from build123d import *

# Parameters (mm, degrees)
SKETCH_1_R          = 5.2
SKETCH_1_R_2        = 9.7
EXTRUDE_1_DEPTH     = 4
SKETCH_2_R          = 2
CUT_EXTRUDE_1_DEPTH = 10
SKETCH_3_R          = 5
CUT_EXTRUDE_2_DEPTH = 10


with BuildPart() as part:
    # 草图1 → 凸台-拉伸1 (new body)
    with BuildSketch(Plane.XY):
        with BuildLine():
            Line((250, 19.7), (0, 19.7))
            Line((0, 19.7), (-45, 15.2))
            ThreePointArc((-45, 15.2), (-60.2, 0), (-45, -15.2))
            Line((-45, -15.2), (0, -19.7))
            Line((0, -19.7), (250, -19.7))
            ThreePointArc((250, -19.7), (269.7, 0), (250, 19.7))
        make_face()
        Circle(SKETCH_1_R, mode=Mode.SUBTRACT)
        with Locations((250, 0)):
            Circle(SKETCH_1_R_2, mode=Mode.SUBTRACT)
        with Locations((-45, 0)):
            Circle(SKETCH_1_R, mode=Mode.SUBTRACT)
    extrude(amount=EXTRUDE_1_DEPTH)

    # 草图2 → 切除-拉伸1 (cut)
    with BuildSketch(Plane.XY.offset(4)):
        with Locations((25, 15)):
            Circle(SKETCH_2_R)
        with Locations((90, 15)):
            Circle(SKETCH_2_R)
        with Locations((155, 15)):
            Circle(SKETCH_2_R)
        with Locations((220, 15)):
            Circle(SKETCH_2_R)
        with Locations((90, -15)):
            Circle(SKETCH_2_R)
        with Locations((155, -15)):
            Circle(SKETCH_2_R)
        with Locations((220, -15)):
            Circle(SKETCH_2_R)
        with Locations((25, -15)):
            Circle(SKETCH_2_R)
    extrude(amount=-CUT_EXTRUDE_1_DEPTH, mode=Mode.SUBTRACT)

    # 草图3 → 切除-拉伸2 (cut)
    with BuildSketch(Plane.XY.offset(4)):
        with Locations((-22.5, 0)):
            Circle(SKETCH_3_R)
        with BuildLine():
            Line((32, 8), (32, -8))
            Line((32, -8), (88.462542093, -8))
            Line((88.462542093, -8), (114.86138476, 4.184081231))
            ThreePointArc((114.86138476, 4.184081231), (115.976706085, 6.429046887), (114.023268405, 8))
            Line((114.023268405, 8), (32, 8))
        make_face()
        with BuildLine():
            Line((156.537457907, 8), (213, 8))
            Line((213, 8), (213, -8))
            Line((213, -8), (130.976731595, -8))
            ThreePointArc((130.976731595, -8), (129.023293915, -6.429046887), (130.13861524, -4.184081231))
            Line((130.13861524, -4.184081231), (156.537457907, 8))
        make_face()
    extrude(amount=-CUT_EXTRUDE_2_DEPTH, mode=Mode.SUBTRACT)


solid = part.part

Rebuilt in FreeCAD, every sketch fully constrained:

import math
import FreeCAD as App
import Part
import Sketcher

doc = App.newDocument("Part")
body = doc.addObject("PartDesign::Body", "Body")

# Sketch on XY plane
sketch1 = doc.addObject("Sketcher::SketchObject", "Sketch")
body.addObject(sketch1)
sketch1.AttachmentSupport = (doc.XY_Plane, [""])
sketch1.MapMode = "FlatFace"
sketch1.addGeometry([
    Part.LineSegment(App.Vector(250, 20, 0), App.Vector(0, 20, 0)),  # 0
    Part.LineSegment(App.Vector(0, 20, 0), App.Vector(-45, 15, 0)),  # 1
    Part.ArcOfCircle(Part.Circle(App.Vector(-45, 0, 0), App.Vector(0, 0, 1), 15), math.radians(90), math.radians(270)),  # 2
    Part.LineSegment(App.Vector(-45, -15, 0), App.Vector(0, -20, 0)),  # 3
    Part.LineSegment(App.Vector(0, -20, 0), App.Vector(250, -20, 0)),  # 4
    Part.ArcOfCircle(Part.Circle(App.Vector(250, 0, 0), App.Vector(0, 0, 1), 20), math.radians(-90), math.radians(90)),  # 5
    Part.Circle(App.Vector(-45, 0, 0), App.Vector(0, 0, 1), 5),  # 6
    Part.Circle(App.Vector(0, 0, 0), App.Vector(0, 0, 1), 5),  # 7
    Part.Circle(App.Vector(250, 0, 0), App.Vector(0, 0, 1), 10),  # 8
], False)
sketch1.addConstraint([
    Sketcher.Constraint("Coincident", 0, 2, 1, 1),
    Sketcher.Constraint("Coincident", 1, 2, 2, 1),
    Sketcher.Constraint("Coincident", 2, 2, 3, 1),
    Sketcher.Constraint("Coincident", 3, 2, 4, 1),
    Sketcher.Constraint("Tangent", 4, 2, 5, 1),
    Sketcher.Constraint("Tangent", 5, 2, 0, 1),
    Sketcher.Constraint("Horizontal", 0),
    Sketcher.Constraint("Horizontal", 4),
    Sketcher.Constraint("Coincident", 7, 3, -1, 1),
    Sketcher.Constraint("Coincident", 6, 3, 2, 3),
    Sketcher.Constraint("Coincident", 8, 3, 5, 3),
    Sketcher.Constraint("Equal", 6, 7),
    Sketcher.Constraint("Symmetric", 0, 2, 3, 2, -1, 1),
    Sketcher.Constraint("Symmetric", 1, 2, 2, 2, -1),
    Sketcher.Constraint("PointOnObject", 0, 2, -2),
    Sketcher.Constraint("Vertical", 6, 3, 1, 2),
    Sketcher.Constraint("Diameter", 6, 10.4),
    Sketcher.Constraint("Diameter", 8, 19.4),
    Sketcher.Constraint("Radius", 2, 15.2),
    Sketcher.Constraint("Radius", 5, 19.7),
    Sketcher.Constraint("DistanceX", 0, 2, 0, 1, 250.0),
    Sketcher.Constraint("DistanceX", 2, 3, -1, 1, 45.0),
])
pad1 = doc.addObject("PartDesign::Pad", "Pad")
body.addObject(pad1)
pad1.Profile = sketch1
pad1.Length = 4

# Sketch on XY plane
sketch2 = doc.addObject("Sketcher::SketchObject", "Sketch001")
body.addObject(sketch2)
sketch2.AttachmentSupport = (doc.XY_Plane, [""])
sketch2.MapMode = "FlatFace"
sketch2.AttachmentOffset = App.Placement(App.Vector(0, 0, 4), App.Rotation())
sketch2.addGeometry([
    Part.Circle(App.Vector(25, 15, 0), App.Vector(0, 0, 1), 2),  # 0
    Part.Circle(App.Vector(90, 15, 0), App.Vector(0, 0, 1), 2),  # 1
    Part.Circle(App.Vector(155, 15, 0), App.Vector(0, 0, 1), 2),  # 2
    Part.Circle(App.Vector(220, 15, 0), App.Vector(0, 0, 1), 2),  # 3
    Part.Circle(App.Vector(90, -15, 0), App.Vector(0, 0, 1), 2),  # 4
    Part.Circle(App.Vector(155, -15, 0), App.Vector(0, 0, 1), 2),  # 5
    Part.Circle(App.Vector(220, -15, 0), App.Vector(0, 0, 1), 2),  # 6
    Part.Circle(App.Vector(25, -15, 0), App.Vector(0, 0, 1), 2),  # 7
], False)
sketch2.addConstraint([
    Sketcher.Constraint("Equal", 0, 1),
    Sketcher.Constraint("Equal", 1, 2),
    Sketcher.Constraint("Equal", 2, 3),
    Sketcher.Constraint("Equal", 3, 4),
    Sketcher.Constraint("Equal", 4, 5),
    Sketcher.Constraint("Equal", 5, 6),
    Sketcher.Constraint("Equal", 6, 7),
    Sketcher.Constraint("Symmetric", 1, 3, 4, 3, -1),
    Sketcher.Constraint("Symmetric", 2, 3, 5, 3, -1),
    Sketcher.Constraint("Symmetric", 3, 3, 6, 3, -1),
    Sketcher.Constraint("Symmetric", 0, 3, 7, 3, -1),
    Sketcher.Constraint("Horizontal", 0, 3, 1, 3),
    Sketcher.Constraint("Horizontal", 1, 3, 2, 3),
    Sketcher.Constraint("Horizontal", 2, 3, 3, 3),
    Sketcher.Constraint("Diameter", 0, 4.0),
    Sketcher.Constraint("DistanceX", -1, 1, 0, 3, 25.0),
    Sketcher.Constraint("DistanceY", -1, 1, 0, 3, 15.0),
    Sketcher.Constraint("DistanceX", -1, 1, 1, 3, 90.0),
    Sketcher.Constraint("DistanceX", -1, 1, 2, 3, 155.0),
    Sketcher.Constraint("DistanceX", -1, 1, 3, 3, 220.0),
])
pocket1 = doc.addObject("PartDesign::Pocket", "Pocket")
body.addObject(pocket1)
pocket1.Profile = sketch2
pocket1.Length = 10

# Sketch on XY plane
sketch3 = doc.addObject("Sketcher::SketchObject", "Sketch002")
body.addObject(sketch3)
sketch3.AttachmentSupport = (doc.XY_Plane, [""])
sketch3.MapMode = "FlatFace"
sketch3.AttachmentOffset = App.Placement(App.Vector(0, 0, 4), App.Rotation())
sketch3.addGeometry([
    Part.Circle(App.Vector(-22.5, 0, 0), App.Vector(0, 0, 1), 5),  # 0
    Part.LineSegment(App.Vector(32, 8, 0), App.Vector(32, -8, 0)),  # 1
    Part.LineSegment(App.Vector(32, -8, 0), App.Vector(88.5, -8, 0)),  # 2
    Part.LineSegment(App.Vector(88.5, -8, 0), App.Vector(114.9, 4.2, 0)),  # 3
    Part.ArcOfCircle(Part.Circle(App.Vector(114, 6, 0), App.Vector(0, 0, 1), 2), math.radians(-65), math.radians(90)),  # 4
    Part.LineSegment(App.Vector(114, 8, 0), App.Vector(32, 8, 0)),  # 5
    Part.LineSegment(App.Vector(213, 8, 0), App.Vector(156.5, 8, 0)),  # 6
    Part.LineSegment(App.Vector(156.5, 8, 0), App.Vector(130.1, -4.2, 0)),  # 7
    Part.ArcOfCircle(Part.Circle(App.Vector(131, -6, 0), App.Vector(0, 0, 1), 2), math.radians(115), math.radians(270)),  # 8
    Part.LineSegment(App.Vector(131, -8, 0), App.Vector(213, -8, 0)),  # 9
    Part.LineSegment(App.Vector(213, -8, 0), App.Vector(213, 8, 0)),  # 10
], False)
sketch3.addConstraint([
    Sketcher.Constraint("Coincident", 1, 2, 2, 1),
    Sketcher.Constraint("Coincident", 2, 2, 3, 1),
    Sketcher.Constraint("Tangent", 3, 2, 4, 1),
    Sketcher.Constraint("Tangent", 4, 2, 5, 1),
    Sketcher.Constraint("Coincident", 5, 2, 1, 1),
    Sketcher.Constraint("Coincident", 6, 2, 7, 1),
    Sketcher.Constraint("Tangent", 7, 2, 8, 1),
    Sketcher.Constraint("Tangent", 8, 2, 9, 1),
    Sketcher.Constraint("Coincident", 9, 2, 10, 1),
    Sketcher.Constraint("Coincident", 10, 2, 6, 1),
    Sketcher.Constraint("Vertical", 1),
    Sketcher.Constraint("Horizontal", 2),
    Sketcher.Constraint("Horizontal", 5),
    Sketcher.Constraint("Horizontal", 6),
    Sketcher.Constraint("Horizontal", 9),
    Sketcher.Constraint("Vertical", 10),
    Sketcher.Constraint("Equal", 4, 8),
    Sketcher.Constraint("PointOnObject", 0, 3, -1),
    Sketcher.Constraint("Parallel", 3, 7),
    Sketcher.Constraint("Horizontal", 5, 2, 6, 2),
    Sketcher.Constraint("Horizontal", 2, 2, 8, 2),
    Sketcher.Constraint("Equal", 2, 6),
    Sketcher.Constraint("Diameter", 0, 10.0),
    Sketcher.Constraint("Radius", 4, 2.0),
    Sketcher.Constraint("DistanceY", 1, 2, 1, 1, 16.0),
    Sketcher.Constraint("DistanceY", -1, 1, 4, 3, 6.0),
    Sketcher.Constraint("DistanceX", -1, 1, 1, 2, 32.0),
    Sketcher.Constraint("DistanceX", -1, 1, 9, 2, 213.0),
    Sketcher.Constraint("DistanceX", 0, 3, -1, 1, 22.5),
    Sketcher.Constraint("DistanceX", 5, 2, 5, 1, 82.023268),
    Sketcher.Constraint("DistanceX", 2, 1, 2, 2, 56.462542),
])
pocket2 = doc.addObject("PartDesign::Pocket", "Pocket001")
body.addObject(pocket2)
pocket2.Profile = sketch3
pocket2.Length = 10

doc.recompute()
